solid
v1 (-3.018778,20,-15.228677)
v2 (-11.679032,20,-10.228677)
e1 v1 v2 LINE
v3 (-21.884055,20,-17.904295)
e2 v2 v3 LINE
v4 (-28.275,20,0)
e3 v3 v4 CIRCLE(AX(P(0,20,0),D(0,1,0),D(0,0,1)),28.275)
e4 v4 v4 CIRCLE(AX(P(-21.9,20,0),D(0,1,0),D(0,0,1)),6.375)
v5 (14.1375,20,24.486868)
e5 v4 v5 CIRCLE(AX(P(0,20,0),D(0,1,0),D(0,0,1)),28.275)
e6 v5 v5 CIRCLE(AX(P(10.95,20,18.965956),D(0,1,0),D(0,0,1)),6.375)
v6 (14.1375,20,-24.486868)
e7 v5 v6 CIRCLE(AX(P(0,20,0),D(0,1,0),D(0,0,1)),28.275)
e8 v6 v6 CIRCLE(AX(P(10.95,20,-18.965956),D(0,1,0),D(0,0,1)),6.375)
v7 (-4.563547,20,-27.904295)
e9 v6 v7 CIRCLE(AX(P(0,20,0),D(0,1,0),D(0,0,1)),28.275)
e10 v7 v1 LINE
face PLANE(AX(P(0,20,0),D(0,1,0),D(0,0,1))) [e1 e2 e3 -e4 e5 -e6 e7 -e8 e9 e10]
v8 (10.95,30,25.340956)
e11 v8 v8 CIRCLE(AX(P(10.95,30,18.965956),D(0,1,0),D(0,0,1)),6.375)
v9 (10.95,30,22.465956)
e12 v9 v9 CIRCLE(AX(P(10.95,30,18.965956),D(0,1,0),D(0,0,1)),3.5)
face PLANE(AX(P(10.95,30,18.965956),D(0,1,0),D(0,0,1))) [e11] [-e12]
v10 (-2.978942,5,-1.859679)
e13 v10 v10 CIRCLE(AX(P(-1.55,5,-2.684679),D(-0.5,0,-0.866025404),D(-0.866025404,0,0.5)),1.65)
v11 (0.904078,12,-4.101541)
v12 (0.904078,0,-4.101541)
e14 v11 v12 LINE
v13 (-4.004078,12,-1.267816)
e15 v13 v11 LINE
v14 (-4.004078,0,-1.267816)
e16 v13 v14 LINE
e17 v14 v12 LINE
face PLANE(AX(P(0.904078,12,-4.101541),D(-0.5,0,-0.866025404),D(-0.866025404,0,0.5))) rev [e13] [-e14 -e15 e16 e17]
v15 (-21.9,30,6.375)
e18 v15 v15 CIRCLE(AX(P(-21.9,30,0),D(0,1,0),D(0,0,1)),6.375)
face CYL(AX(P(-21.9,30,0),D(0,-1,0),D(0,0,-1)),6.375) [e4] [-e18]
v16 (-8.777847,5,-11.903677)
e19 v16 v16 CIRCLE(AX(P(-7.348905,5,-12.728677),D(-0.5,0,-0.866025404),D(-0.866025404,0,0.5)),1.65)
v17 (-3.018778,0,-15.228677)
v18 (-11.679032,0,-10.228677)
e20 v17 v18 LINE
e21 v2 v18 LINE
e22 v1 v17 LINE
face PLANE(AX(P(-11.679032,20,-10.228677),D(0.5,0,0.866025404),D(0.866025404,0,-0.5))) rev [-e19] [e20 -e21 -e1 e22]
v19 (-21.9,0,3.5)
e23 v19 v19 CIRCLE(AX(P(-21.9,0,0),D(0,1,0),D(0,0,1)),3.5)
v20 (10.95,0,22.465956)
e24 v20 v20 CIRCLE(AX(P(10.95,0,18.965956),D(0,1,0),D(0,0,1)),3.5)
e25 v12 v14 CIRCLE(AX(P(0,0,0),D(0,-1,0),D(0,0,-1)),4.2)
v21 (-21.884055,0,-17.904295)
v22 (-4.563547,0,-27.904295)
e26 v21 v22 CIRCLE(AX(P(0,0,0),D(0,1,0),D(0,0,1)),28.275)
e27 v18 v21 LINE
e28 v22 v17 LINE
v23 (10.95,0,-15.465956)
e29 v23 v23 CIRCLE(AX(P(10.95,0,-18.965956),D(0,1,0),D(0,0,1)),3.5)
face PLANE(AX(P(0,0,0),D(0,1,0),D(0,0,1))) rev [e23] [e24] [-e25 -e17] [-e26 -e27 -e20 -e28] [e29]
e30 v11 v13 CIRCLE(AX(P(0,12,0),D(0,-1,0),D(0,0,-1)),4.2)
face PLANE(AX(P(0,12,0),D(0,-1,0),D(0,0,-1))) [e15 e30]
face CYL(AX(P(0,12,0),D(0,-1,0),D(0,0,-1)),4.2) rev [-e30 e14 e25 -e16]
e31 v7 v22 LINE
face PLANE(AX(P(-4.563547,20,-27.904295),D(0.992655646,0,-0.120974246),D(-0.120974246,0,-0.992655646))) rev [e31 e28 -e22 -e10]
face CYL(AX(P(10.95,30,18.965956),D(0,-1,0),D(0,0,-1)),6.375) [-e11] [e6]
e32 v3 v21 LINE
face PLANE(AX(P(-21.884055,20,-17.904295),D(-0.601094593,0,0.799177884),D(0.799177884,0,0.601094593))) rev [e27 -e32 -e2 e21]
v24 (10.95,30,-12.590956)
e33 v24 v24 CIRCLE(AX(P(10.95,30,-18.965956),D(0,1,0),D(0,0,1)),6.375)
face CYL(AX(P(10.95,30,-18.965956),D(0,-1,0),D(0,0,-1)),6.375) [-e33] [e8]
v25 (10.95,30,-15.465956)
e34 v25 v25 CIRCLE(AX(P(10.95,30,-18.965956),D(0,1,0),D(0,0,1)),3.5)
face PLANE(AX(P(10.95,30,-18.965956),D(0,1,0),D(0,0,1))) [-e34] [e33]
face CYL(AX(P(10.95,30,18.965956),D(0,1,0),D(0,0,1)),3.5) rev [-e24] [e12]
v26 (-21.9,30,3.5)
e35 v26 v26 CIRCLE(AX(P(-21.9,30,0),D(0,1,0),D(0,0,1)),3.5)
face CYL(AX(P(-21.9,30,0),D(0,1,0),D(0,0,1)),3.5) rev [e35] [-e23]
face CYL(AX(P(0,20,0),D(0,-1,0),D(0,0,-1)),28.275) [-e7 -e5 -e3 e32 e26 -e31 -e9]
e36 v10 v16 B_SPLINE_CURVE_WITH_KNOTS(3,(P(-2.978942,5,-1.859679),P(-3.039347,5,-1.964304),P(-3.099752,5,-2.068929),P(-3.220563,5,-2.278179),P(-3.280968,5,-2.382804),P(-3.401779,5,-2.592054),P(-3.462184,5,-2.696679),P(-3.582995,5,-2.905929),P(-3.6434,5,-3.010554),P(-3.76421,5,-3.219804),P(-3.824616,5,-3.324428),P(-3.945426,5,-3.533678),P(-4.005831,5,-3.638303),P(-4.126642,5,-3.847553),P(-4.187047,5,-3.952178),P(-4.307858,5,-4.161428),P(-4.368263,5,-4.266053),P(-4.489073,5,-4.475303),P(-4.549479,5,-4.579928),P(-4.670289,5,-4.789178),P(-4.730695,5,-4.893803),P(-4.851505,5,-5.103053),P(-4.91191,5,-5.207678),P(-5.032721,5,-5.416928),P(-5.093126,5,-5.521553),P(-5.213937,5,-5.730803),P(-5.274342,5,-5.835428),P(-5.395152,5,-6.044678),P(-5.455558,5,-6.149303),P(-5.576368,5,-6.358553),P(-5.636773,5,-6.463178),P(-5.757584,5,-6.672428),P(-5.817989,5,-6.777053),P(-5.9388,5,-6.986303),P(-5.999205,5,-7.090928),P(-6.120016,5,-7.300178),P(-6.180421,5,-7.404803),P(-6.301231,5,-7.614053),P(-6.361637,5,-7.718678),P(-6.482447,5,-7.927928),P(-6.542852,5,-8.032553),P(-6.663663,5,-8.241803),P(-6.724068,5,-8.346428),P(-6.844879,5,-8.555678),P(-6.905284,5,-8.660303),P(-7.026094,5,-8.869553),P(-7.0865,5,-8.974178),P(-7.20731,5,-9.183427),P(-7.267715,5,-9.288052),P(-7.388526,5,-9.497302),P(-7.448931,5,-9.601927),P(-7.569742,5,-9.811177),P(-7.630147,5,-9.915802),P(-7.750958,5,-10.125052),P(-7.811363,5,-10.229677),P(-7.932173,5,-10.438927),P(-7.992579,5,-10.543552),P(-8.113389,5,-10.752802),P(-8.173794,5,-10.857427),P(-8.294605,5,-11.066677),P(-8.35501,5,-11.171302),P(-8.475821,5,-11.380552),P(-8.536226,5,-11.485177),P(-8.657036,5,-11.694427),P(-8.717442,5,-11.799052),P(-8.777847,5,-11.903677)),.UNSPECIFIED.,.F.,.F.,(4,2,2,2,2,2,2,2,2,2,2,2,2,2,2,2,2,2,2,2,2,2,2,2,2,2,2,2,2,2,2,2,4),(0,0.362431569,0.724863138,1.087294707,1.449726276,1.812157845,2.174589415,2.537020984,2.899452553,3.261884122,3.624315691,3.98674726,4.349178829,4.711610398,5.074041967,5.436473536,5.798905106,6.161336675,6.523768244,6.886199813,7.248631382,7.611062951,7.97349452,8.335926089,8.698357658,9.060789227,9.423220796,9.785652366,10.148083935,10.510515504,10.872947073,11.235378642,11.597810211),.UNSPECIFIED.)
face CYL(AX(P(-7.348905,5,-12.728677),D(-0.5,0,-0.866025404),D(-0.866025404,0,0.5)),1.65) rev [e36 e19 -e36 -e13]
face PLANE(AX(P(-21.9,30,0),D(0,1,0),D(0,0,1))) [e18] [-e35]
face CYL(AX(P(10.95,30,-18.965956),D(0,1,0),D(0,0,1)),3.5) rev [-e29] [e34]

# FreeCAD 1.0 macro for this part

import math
import FreeCAD as App
import Part
import Sketcher
from FreeCAD import Vector
Q = App.Units.Quantity

doc = App.newDocument("Part")
body = doc.addObject("PartDesign::Body", "Body")

# Sketch on XZ plane
sketch1 = body.newObject("Sketcher::SketchObject", "Sketch")
sketch1.AttachmentSupport = (doc.getObject("XZ_Plane"), [""])
sketch1.MapMode = "FlatFace"
sketch1.addGeometry(Part.LineSegment(Vector(-12, -10, 0), Vector(-22, -18, 0)), False)
sketch1.addGeometry(Part.ArcOfCircle(Part.Circle(Vector(0, 0, 0), Vector(0, 0, 1), 28), math.radians(-99), math.radians(219)), False)
sketch1.addGeometry(Part.LineSegment(Vector(-5, -28, 0), Vector(-3, -15, 0)), False)
sketch1.addGeometry(Part.LineSegment(Vector(-3, -15, 0), Vector(-12, -10, 0)), False)
sketch1.addConstraint(Sketcher.Constraint("Coincident", 0, 2, 1, 2))
sketch1.addConstraint(Sketcher.Constraint("Coincident", 1, 1, 2, 1))
sketch1.addConstraint(Sketcher.Constraint("Coincident", 2, 2, 3, 1))
sketch1.addConstraint(Sketcher.Constraint("Coincident", 3, 2, 0, 1))
sketch1.addConstraint(Sketcher.Constraint("Coincident", 1, 3, -1, 1))
sketch1.addConstraint(Sketcher.Constraint("Equal", 0, 2))
sketch1.addConstraint(Sketcher.Constraint("Angle", 3, Q("150 deg")))
sketch1.addConstraint(Sketcher.Constraint("Distance", 3, Q("10 mm")))
sketch1.addConstraint(Sketcher.Constraint("Radius", 1, Q("28.275 mm")))
sketch1.addConstraint(Sketcher.Constraint("DistanceY", 1, 1, 0, 2, Q("10 mm")))
sketch1.addConstraint(Sketcher.Constraint("Distance", 0, Q("12.769401 mm")))
sketch1.addConstraint(Sketcher.Constraint("DistanceX", 2, 2, -1, 1, Q("3.018778 mm")))
pad1 = body.newObject("PartDesign::Pad", "Pad")
pad1.Profile = sketch1
pad1.Length = 20
pad1.Reversed = True

# Sketch on XZ plane
sketch2 = body.newObject("Sketcher::SketchObject", "Sketch001")
sketch2.AttachmentSupport = (doc.getObject("XZ_Plane"), [""])
sketch2.MapMode = "FlatFace"
sketch2.AttachmentOffset = App.Placement(Vector(0, 0, -20), App.Rotation())
sketch2.addGeometry(Part.Circle(Vector(-22, 0, 0), Vector(0, 0, 1), 6), False)
sketch2.addGeometry(Part.Circle(Vector(11, -19, 0), Vector(0, 0, 1), 6), False)
sketch2.addGeometry(Part.Circle(Vector(11, 19, 0), Vector(0, 0, 1), 6), False)
sketch2.addConstraint(Sketcher.Constraint("Equal", 0, 1))
sketch2.addConstraint(Sketcher.Constraint("Equal", 1, 2))
sketch2.addConstraint(Sketcher.Constraint("Symmetric", 1, 3, 2, 3, -1))
sketch2.addConstraint(Sketcher.Constraint("PointOnObject", 0, 3, -1))
sketch2.addConstraint(Sketcher.Constraint("Diameter", 0, Q("12.75 mm")))
sketch2.addConstraint(Sketcher.Constraint("DistanceX", 0, 3, -1, 1, Q("21.9 mm")))
sketch2.addConstraint(Sketcher.Constraint("DistanceX", -1, 1, 1, 3, Q("10.95 mm")))
sketch2.addConstraint(Sketcher.Constraint("DistanceY", 1, 3, -1, 1, Q("18.965956 mm")))
pad2 = body.newObject("PartDesign::Pad", "Pad001")
pad2.Profile = sketch2
pad2.Length = 10
pad2.Reversed = True

# Sketch on XZ plane
sketch3 = body.newObject("Sketcher::SketchObject", "Sketch002")
sketch3.AttachmentSupport = (doc.getObject("XZ_Plane"), [""])
sketch3.MapMode = "FlatFace"
sketch3.addGeometry(Part.LineSegment(Vector(-4, -1.3, 0), Vector(0.9, -4.1, 0)), False)
sketch3.addGeometry(Part.ArcOfCircle(Part.Circle(Vector(0, 0, 0), Vector(0, 0, 1), 4.2), math.radians(-78), math.radians(198)), False)
sketch3.addConstraint(Sketcher.Constraint("Coincident", 0, 1, 1, 2))
sketch3.addConstraint(Sketcher.Constraint("Coincident", 1, 1, 0, 2))
sketch3.addConstraint(Sketcher.Constraint("Coincident", 1, 3, -1, 1))
sketch3.addConstraint(Sketcher.Constraint("Radius", 1, Q("4.2 mm")))
sketch3.addConstraint(Sketcher.Constraint("Angle", 0, Q("-30 deg")))
sketch3.addConstraint(Sketcher.Constraint("Distance", 0, Q("5.667451 mm")))
pocket1 = body.newObject("PartDesign::Pocket", "Pocket")
pocket1.Profile = sketch3
pocket1.Length = 12

# Sketch on XZ plane
sketch4 = body.newObject("Sketcher::SketchObject", "Sketch003")
sketch4.AttachmentSupport = (doc.getObject("XZ_Plane"), [""])
sketch4.MapMode = "FlatFace"
sketch4.AttachmentOffset = App.Placement(Vector(0, 0, -30), App.Rotation())
sketch4.addGeometry(Part.Circle(Vector(10.9, -19, 0), Vector(0, 0, 1), 3.5), False)
sketch4.addGeometry(Part.Circle(Vector(10.9, 19, 0), Vector(0, 0, 1), 3.5), False)
sketch4.addGeometry(Part.Circle(Vector(-21.9, 0, 0), Vector(0, 0, 1), 3.5), False)
sketch4.addConstraint(Sketcher.Constraint("Equal", 0, 1))
sketch4.addConstraint(Sketcher.Constraint("Equal", 1, 2))
sketch4.addConstraint(Sketcher.Constraint("Symmetric", 0, 3, 1, 3, -1))
sketch4.addConstraint(Sketcher.Constraint("PointOnObject", 2, 3, -1))
sketch4.addConstraint(Sketcher.Constraint("Diameter", 0, Q("7 mm")))
sketch4.addConstraint(Sketcher.Constraint("DistanceX", 2, 3, -1, 1, Q("21.9 mm")))
sketch4.addConstraint(Sketcher.Constraint("DistanceX", -1, 1, 0, 3, Q("10.95 mm")))
sketch4.addConstraint(Sketcher.Constraint("DistanceY", 0, 3, -1, 1, Q("18.965956 mm")))
doc.recompute()
hole = body.newObject("PartDesign::Hole", "Hole")
hole.Profile = sketch4
hole.ThreadType = "None"
hole.Diameter = 7
hole.DepthType = "ThroughAll"
hole.Reversed = True

# Sketch on an angled plane
sketch5 = body.newObject("Sketcher::SketchObject", "Sketch004")
sketch5.Placement = App.Placement(Vector(-7.348905, 0, -12.728677), App.Rotation(Vector(-0.866025404, 0, 0.5), Vector(0, 1, 0), Vector(-0.5, 0, -0.866025404), "ZXY"))
sketch5.addGeometry(Part.Circle(Vector(0, 5, 0), Vector(0, 0, 1), 1.6), False)
sketch5.addConstraint(Sketcher.Constraint("PointOnObject", 0, 3, -2))
sketch5.addConstraint(Sketcher.Constraint("Diameter", 0, Q("3.3 mm")))
sketch5.addConstraint(Sketcher.Constraint("DistanceY", -1, 1, 0, 3, Q("5 mm")))
doc.recompute()
hole2 = body.newObject("PartDesign::Hole", "Hole001")
hole2.Profile = sketch5
hole2.ThreadType = "None"
hole2.Diameter = 3.3
hole2.DepthType = "Dimension"
hole2.Depth = 11.59781
hole2.DrillPoint = "Flat"

doc.recompute()
